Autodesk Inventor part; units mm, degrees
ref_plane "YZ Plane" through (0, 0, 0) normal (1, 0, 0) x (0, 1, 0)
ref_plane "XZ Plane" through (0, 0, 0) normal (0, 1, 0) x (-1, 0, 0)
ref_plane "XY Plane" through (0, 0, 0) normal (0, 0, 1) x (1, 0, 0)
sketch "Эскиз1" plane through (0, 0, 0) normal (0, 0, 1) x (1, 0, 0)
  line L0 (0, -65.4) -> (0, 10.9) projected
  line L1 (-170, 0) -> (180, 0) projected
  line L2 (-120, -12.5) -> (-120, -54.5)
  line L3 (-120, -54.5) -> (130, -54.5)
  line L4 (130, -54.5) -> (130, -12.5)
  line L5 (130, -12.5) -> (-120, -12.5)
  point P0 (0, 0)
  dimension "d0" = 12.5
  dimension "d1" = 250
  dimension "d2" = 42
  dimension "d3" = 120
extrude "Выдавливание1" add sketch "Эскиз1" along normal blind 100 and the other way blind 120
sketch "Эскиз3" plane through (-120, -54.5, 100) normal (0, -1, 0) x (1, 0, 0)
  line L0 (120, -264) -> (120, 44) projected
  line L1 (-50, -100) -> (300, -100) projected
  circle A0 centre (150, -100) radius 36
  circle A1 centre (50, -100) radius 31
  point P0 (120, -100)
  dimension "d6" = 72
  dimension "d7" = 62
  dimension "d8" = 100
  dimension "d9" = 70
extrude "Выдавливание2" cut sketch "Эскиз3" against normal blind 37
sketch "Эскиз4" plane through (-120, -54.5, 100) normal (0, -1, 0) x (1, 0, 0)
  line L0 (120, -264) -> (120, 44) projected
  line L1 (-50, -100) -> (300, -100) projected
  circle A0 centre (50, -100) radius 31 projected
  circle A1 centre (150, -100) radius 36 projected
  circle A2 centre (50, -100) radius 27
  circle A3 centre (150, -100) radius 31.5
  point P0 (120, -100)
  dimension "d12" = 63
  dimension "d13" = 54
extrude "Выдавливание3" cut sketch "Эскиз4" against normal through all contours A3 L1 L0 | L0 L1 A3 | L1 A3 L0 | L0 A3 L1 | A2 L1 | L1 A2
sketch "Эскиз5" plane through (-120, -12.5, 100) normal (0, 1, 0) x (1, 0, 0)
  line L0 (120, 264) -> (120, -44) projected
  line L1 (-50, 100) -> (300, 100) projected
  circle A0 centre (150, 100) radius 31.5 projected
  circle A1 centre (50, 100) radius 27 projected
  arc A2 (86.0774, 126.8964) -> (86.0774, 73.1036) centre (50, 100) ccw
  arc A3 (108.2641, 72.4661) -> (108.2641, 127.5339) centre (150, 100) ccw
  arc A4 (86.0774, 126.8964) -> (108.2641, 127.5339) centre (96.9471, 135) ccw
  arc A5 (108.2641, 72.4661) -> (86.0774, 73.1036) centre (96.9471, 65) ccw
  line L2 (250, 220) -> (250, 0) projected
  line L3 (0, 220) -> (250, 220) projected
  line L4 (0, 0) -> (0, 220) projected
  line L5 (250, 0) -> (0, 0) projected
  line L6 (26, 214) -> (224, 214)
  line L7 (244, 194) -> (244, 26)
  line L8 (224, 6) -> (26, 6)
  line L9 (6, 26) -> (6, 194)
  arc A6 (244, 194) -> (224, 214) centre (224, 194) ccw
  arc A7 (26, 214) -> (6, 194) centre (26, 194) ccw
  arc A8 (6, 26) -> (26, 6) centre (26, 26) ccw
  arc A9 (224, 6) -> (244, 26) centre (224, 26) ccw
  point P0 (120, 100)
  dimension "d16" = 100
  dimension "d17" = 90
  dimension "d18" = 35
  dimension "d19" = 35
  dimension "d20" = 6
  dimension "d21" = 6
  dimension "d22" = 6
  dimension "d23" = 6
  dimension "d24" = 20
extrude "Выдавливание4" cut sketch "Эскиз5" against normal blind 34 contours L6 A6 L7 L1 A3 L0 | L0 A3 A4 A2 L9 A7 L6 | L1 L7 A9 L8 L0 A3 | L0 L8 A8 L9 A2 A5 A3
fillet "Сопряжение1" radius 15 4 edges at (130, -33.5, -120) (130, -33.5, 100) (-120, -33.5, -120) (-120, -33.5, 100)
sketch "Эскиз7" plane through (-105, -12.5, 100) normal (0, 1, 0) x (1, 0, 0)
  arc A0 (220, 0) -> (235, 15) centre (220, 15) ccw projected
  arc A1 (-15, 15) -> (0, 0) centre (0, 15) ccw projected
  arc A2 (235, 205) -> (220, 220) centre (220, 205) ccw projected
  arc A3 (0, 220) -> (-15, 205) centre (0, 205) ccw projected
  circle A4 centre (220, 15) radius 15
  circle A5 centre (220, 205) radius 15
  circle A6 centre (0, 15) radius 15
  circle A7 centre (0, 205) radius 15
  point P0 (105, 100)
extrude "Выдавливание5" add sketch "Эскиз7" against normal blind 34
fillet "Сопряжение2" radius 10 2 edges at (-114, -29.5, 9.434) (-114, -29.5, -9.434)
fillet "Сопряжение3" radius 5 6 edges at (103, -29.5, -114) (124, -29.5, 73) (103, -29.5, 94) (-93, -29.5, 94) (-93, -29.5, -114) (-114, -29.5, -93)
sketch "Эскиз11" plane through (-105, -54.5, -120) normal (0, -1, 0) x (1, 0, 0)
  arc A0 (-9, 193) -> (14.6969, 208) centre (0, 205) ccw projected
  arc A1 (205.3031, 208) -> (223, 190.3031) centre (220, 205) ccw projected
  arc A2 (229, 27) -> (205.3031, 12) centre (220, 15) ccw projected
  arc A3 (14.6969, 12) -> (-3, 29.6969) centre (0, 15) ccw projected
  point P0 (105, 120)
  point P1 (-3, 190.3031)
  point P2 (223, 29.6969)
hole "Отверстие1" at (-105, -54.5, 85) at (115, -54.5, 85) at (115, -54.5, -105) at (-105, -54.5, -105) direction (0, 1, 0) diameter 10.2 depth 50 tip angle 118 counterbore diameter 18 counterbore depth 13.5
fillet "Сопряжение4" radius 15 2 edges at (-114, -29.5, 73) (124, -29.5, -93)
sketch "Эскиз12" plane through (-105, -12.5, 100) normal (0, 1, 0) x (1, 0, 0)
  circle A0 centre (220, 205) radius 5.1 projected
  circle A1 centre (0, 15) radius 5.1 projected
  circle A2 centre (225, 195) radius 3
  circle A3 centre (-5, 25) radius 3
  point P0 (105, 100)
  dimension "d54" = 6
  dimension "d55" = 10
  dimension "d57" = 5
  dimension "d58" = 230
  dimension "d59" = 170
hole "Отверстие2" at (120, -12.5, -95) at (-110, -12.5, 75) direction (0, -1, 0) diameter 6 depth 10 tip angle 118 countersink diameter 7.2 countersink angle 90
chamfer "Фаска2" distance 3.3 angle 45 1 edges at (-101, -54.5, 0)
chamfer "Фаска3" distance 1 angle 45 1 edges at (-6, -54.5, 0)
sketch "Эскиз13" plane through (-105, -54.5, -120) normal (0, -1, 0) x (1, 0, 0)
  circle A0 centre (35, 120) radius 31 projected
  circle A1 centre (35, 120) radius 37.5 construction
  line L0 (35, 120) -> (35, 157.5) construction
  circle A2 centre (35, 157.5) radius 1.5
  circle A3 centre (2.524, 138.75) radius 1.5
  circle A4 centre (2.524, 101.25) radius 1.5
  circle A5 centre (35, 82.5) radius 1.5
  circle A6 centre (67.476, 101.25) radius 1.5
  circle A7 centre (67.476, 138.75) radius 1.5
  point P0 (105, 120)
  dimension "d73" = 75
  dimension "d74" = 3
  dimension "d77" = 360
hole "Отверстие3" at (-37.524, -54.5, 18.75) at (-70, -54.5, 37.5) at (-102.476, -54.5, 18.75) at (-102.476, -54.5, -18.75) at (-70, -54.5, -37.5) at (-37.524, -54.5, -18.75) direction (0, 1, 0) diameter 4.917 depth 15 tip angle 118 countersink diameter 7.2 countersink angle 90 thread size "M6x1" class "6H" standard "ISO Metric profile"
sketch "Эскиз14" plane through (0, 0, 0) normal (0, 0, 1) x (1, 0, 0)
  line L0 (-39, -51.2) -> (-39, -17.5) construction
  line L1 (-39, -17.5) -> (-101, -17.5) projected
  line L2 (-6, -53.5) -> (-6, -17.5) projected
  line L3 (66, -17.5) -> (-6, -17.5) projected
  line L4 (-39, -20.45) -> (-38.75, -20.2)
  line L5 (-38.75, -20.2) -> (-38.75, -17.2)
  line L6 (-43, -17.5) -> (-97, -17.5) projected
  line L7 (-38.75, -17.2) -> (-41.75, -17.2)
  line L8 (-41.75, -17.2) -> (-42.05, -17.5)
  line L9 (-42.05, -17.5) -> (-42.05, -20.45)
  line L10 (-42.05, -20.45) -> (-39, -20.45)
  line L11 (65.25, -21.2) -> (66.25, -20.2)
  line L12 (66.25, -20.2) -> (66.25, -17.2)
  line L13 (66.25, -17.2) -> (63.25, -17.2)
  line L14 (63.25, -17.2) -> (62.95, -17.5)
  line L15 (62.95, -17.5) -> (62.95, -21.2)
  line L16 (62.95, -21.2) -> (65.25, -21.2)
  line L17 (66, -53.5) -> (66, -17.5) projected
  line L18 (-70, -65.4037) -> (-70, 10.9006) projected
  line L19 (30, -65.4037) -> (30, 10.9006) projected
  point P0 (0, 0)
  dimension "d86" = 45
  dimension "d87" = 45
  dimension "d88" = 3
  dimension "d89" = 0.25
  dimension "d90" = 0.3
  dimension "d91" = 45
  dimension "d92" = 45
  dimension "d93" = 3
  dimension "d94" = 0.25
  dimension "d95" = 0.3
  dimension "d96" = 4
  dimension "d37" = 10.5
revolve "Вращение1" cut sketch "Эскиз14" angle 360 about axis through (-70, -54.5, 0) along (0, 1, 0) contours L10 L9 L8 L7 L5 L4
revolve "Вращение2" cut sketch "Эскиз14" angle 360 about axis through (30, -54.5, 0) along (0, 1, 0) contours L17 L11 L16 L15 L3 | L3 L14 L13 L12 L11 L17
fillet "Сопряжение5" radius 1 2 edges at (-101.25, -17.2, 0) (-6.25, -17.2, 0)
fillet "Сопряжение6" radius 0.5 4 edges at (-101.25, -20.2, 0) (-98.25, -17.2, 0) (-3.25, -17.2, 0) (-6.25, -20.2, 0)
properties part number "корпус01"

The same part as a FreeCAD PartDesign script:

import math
import FreeCAD as App
import Part
import Sketcher
Q = App.Units.Quantity


def edges_at(feature, points):
    """Names of the edges that pass closest to the given points."""
    edges = feature.Shape.Edges
    near = lambda p: min(range(len(edges)), key=lambda i: edges[i].distToShape(Part.Vertex(*p))[0])
    return sorted({f"Edge{near(p) + 1}" for p in points})

doc = App.newDocument("Part")
body = doc.addObject("PartDesign::Body", "Body")

# Sketch on XY plane
sketch1 = body.newObject("Sketcher::SketchObject", "Sketch")
sketch1.AttachmentSupport = (doc.getObject("XY_Plane"), [""])
sketch1.MapMode = "FlatFace"
sketch1.addGeometry([
    Part.LineSegment(App.Vector(-120, -54, 0), App.Vector(130, -54, 0)),
    Part.LineSegment(App.Vector(130, -54, 0), App.Vector(130, -12, 0)),
    Part.LineSegment(App.Vector(130, -12, 0), App.Vector(-120, -12, 0)),
    Part.LineSegment(App.Vector(-120, -12, 0), App.Vector(-120, -54, 0)),
], False)
sketch1.addConstraint([
    Sketcher.Constraint("Coincident", 0, 2, 1, 1),
    Sketcher.Constraint("Coincident", 1, 2, 2, 1),
    Sketcher.Constraint("Coincident", 2, 2, 3, 1),
    Sketcher.Constraint("Coincident", 3, 2, 0, 1),
    Sketcher.Constraint("Horizontal", 0),
    Sketcher.Constraint("Vertical", 1),
    Sketcher.Constraint("Horizontal", 2),
    Sketcher.Constraint("Vertical", 3),
    Sketcher.Constraint("DistanceX", 0, 1, 0, 2, Q("250 mm")),
    Sketcher.Constraint("DistanceY", 1, 1, 1, 2, Q("42 mm")),
    Sketcher.Constraint("DistanceX", 2, 2, -1, 1, Q("120 mm")),
    Sketcher.Constraint("DistanceY", 1, 2, -1, 1, Q("12.5 mm")),
])
pad1 = body.newObject("PartDesign::Pad", "Pad")
pad1.Profile = sketch1
pad1.Type = "TwoLengths"
pad1.Length = 100
pad1.Length2 = 120

# Sketch on XZ plane
sketch2 = body.newObject("Sketcher::SketchObject", "Sketch001")
sketch2.AttachmentSupport = (doc.getObject("XZ_Plane"), [""])
sketch2.MapMode = "FlatFace"
sketch2.AttachmentOffset = App.Placement(App.Vector(0, 0, 54.5), App.Rotation())
sketch2.addGeometry([
    Part.Circle(App.Vector(30, 0, 0), App.Vector(0, 0, 1), 36),
    Part.Circle(App.Vector(-70, 0, 0), App.Vector(0, 0, 1), 31),
], False)
sketch2.addConstraint([
    Sketcher.Constraint("PointOnObject", 0, 3, -1),
    Sketcher.Constraint("PointOnObject", 1, 3, -1),
    Sketcher.Constraint("Diameter", 0, Q("72 mm")),
    Sketcher.Constraint("Diameter", 1, Q("62 mm")),
    Sketcher.Constraint("DistanceX", 1, 3, -1, 1, Q("70 mm")),
    Sketcher.Constraint("DistanceX", 1, 3, 0, 3, Q("100 mm")),
])
pocket1 = body.newObject("PartDesign::Pocket", "Pocket")
pocket1.Profile = sketch2
pocket1.Length = 37

# Sketch on XZ plane
sketch3 = body.newObject("Sketcher::SketchObject", "Sketch002")
sketch3.AttachmentSupport = (doc.getObject("XZ_Plane"), [""])
sketch3.MapMode = "FlatFace"
sketch3.AttachmentOffset = App.Placement(App.Vector(0, 0, 54.5), App.Rotation())
sketch3.addGeometry([
    Part.Circle(App.Vector(30, 0, 0), App.Vector(0, 0, 1), 32),
    Part.Circle(App.Vector(-70, 0, 0), App.Vector(0, 0, 1), 27),
], False)
sketch3.addConstraint([
    Sketcher.Constraint("PointOnObject", 0, 3, -1),
    Sketcher.Constraint("PointOnObject", 1, 3, -1),
    Sketcher.Constraint("Diameter", 0, Q("63 mm")),
    Sketcher.Constraint("Diameter", 1, Q("54 mm")),
    Sketcher.Constraint("DistanceX", -1, 1, 0, 3, Q("30 mm")),
    Sketcher.Constraint("DistanceX", 1, 3, -1, 1, Q("70 mm")),
])
pocket2 = body.newObject("PartDesign::Pocket", "Pocket001")
pocket2.Profile = sketch3
pocket2.Type = "ThroughAll"

# Sketch on XZ plane
sketch4 = body.newObject("Sketcher::SketchObject", "Sketch003")
sketch4.AttachmentSupport = (doc.getObject("XZ_Plane"), [""])
sketch4.MapMode = "FlatFace"
sketch4.AttachmentOffset = App.Placement(App.Vector(0, 0, 12.5), App.Rotation())
sketch4.addGeometry([
    Part.LineSegment(App.Vector(104, -114, 0), App.Vector(-94, -114, 0)),  # 0
    Part.ArcOfCircle(Part.Circle(App.Vector(-94, -94, 0), App.Vector(0, 0, 1), 20), math.radians(180), math.radians(270)),  # 1
    Part.LineSegment(App.Vector(-114, -94, 0), App.Vector(-114, -9, 0)),  # 2
    Part.ArcOfCircle(Part.Circle(App.Vector(-70, 0, 0), App.Vector(0, 0, 1), 45), math.radians(-168), math.radians(-37)),  # 3
    Part.ArcOfCircle(Part.Circle(App.Vector(-23, -35, 0), App.Vector(0, 0, 1), 14), math.radians(33), math.radians(143)),  # 4
    Part.ArcOfCircle(Part.Circle(App.Vector(30, 0, 0), App.Vector(0, 0, 1), 50), math.radians(-147), math.radians(147)),  # 5
    Part.ArcOfCircle(Part.Circle(App.Vector(-23, 35, 0), App.Vector(0, 0, 1), 14), math.radians(-143), math.radians(-33)),  # 6
    Part.ArcOfCircle(Part.Circle(App.Vector(-70, 0, 0), App.Vector(0, 0, 1), 45), math.radians(37), math.radians(168)),  # 7
    Part.LineSegment(App.Vector(-114, 9, 0), App.Vector(-114, 74, 0)),  # 8
    Part.ArcOfCircle(Part.Circle(App.Vector(-94, 74, 0), App.Vector(0, 0, 1), 20), math.radians(90), math.radians(180)),  # 9
    Part.LineSegment(App.Vector(-94, 94, 0), App.Vector(104, 94, 0)),  # 10
    Part.ArcOfCircle(Part.Circle(App.Vector(104, 74, 0), App.Vector(0, 0, 1), 20), math.radians(0), math.radians(90)),  # 11
    Part.LineSegment(App.Vector(124, 74, 0), App.Vector(124, -94, 0)),  # 12
    Part.ArcOfCircle(Part.Circle(App.Vector(104, -94, 0), App.Vector(0, 0, 1), 20), math.radians(-90), math.radians(0)),  # 13
], False)
sketch4.addConstraint([
    Sketcher.Constraint("Tangent", 0, 2, 1, 2),
    Sketcher.Constraint("Tangent", 1, 1, 2, 1),
    Sketcher.Constraint("Coincident", 2, 2, 3, 1),
    Sketcher.Constraint("Tangent", 3, 2, 4, 2),
    Sketcher.Constraint("Tangent", 4, 1, 5, 1),
    Sketcher.Constraint("Tangent", 5, 2, 6, 2),
    Sketcher.Constraint("Tangent", 6, 1, 7, 1),
    Sketcher.Constraint("Coincident", 7, 2, 8, 1),
    Sketcher.Constraint("Tangent", 8, 2, 9, 2),
    Sketcher.Constraint("Tangent", 9, 1, 10, 1),
    Sketcher.Constraint("Tangent", 10, 2, 11, 2),
    Sketcher.Constraint("Tangent", 11, 1, 12, 1),
    Sketcher.Constraint("Tangent", 12, 2, 13, 2),
    Sketcher.Constraint("Tangent", 13, 1, 0, 1),
    Sketcher.Constraint("Horizontal", 0),
    Sketcher.Constraint("Vertical", 2),
    Sketcher.Constraint("Vertical", 8),
    Sketcher.Constraint("Horizontal", 10),
    Sketcher.Constraint("Vertical", 12),
    Sketcher.Constraint("Coincident", 7, 3, 3, 3),
    Sketcher.Constraint("Equal", 4, 6),
    Sketcher.Constraint("Equal", 3, 7),
    Sketcher.Constraint("Equal", 1, 9),
    Sketcher.Constraint("Equal", 9, 11),
    Sketcher.Constraint("Equal", 11, 13),
    Sketcher.Constraint("Symmetric", 4, 3, 6, 3, -1),
    Sketcher.Constraint("Vertical", 1, 3, 9, 3),
    Sketcher.Constraint("Radius", 1, Q("20 mm")),
    Sketcher.Constraint("Radius", 3, Q("45 mm")),
    Sketcher.Constraint("Radius", 5, Q("50 mm")),
    Sketcher.Constraint("DistanceY", 4, 3, -1, 1, Q("35 mm")),
    Sketcher.Constraint("DistanceX", 3, 3, 5, 3, Q("100 mm")),
    Sketcher.Constraint("DistanceX", 0, 2, 0, 1, Q("198 mm")),
    Sketcher.Constraint("DistanceY", 12, 2, 12, 1, Q("168 mm")),
    Sketcher.Constraint("DistanceX", 1, 3, -1, 1, Q("94 mm")),
    Sketcher.Constraint("DistanceY", 1, 3, -1, 1, Q("94 mm")),
    Sketcher.Constraint("DistanceX", 3, 3, -1, 1, Q("70 mm")),
])
pocket3 = body.newObject("PartDesign::Pocket", "Pocket002")
pocket3.Profile = sketch4
pocket3.Length = 34
pocket3.Reversed = True
doc.recompute()

fillet = body.newObject("PartDesign::Fillet", "Fillet")
fillet.Base = (pocket3, edges_at(pocket3, [
    (130, -33.5, -120),
    (130, -33.5, 100),
    (-120, -33.5, -120),
    (-120, -33.5, 100),
]))
fillet.Radius = 15

# Sketch on XZ plane
sketch5 = body.newObject("Sketcher::SketchObject", "Sketch004")
sketch5.AttachmentSupport = (doc.getObject("XZ_Plane"), [""])
sketch5.MapMode = "FlatFace"
sketch5.AttachmentOffset = App.Placement(App.Vector(0, 0, 12.5), App.Rotation())
sketch5.addGeometry([
    Part.Circle(App.Vector(115, 85, 0), App.Vector(0, 0, 1), 15),
    Part.Circle(App.Vector(-105, 85, 0), App.Vector(0, 0, 1), 15),
    Part.Circle(App.Vector(115, -105, 0), App.Vector(0, 0, 1), 15),
    Part.Circle(App.Vector(-105, -105, 0), App.Vector(0, 0, 1), 15),
], False)
sketch5.addConstraint([
    Sketcher.Constraint("Equal", 0, 1),
    Sketcher.Constraint("Equal", 1, 2),
    Sketcher.Constraint("Equal", 2, 3),
    Sketcher.Constraint("Horizontal", 0, 3, 1, 3),
    Sketcher.Constraint("Horizontal", 2, 3, 3, 3),
    Sketcher.Constraint("Vertical", 0, 3, 2, 3),
    Sketcher.Constraint("Vertical", 1, 3, 3, 3),
    Sketcher.Constraint("Diameter", 0, Q("30 mm")),
    Sketcher.Constraint("DistanceX", -1, 1, 0, 3, Q("115 mm")),
    Sketcher.Constraint("DistanceY", -1, 1, 0, 3, Q("85 mm")),
    Sketcher.Constraint("DistanceX", 1, 3, -1, 1, Q("105 mm")),
    Sketcher.Constraint("DistanceY", 2, 3, -1, 1, Q("105 mm")),
])
pad2 = body.newObject("PartDesign::Pad", "Pad001")
pad2.Profile = sketch5
pad2.Length = 34
doc.recompute()

fillet2 = body.newObject("PartDesign::Fillet", "Fillet001")
fillet2.Base = (pad2, edges_at(pad2, [(-114, -29.5, 9.434), (-114, -29.5, -9.434)]))
fillet2.Radius = 10
doc.recompute()

fillet3 = body.newObject("PartDesign::Fillet", "Fillet002")
fillet3.Base = (fillet2, edges_at(fillet2, [
    (103, -29.5, -114),
    (124, -29.5, 73),
    (103, -29.5, 94),
    (-93, -29.5, 94),
    (-93, -29.5, -114),
    (-114, -29.5, -93),
]))
fillet3.Radius = 5

# Sketch on XZ plane
sketch6 = body.newObject("Sketcher::SketchObject", "Sketch005")
sketch6.AttachmentSupport = (doc.getObject("XZ_Plane"), [""])
sketch6.MapMode = "FlatFace"
sketch6.AttachmentOffset = App.Placement(App.Vector(0, 0, 54.5), App.Rotation())
sketch6.addGeometry([
    Part.Circle(App.Vector(-105, 85, 0), App.Vector(0, 0, 1), 5),
    Part.Circle(App.Vector(115, 85, 0), App.Vector(0, 0, 1), 5),
    Part.Circle(App.Vector(115, -105, 0), App.Vector(0, 0, 1), 5),
    Part.Circle(App.Vector(-105, -105, 0), App.Vector(0, 0, 1), 5),
], False)
sketch6.addConstraint([
    Sketcher.Constraint("Equal", 0, 1),
    Sketcher.Constraint("Equal", 1, 2),
    Sketcher.Constraint("Equal", 2, 3),
    Sketcher.Constraint("Horizontal", 0, 3, 1, 3),
    Sketcher.Constraint("Horizontal", 2, 3, 3, 3),
    Sketcher.Constraint("Vertical", 1, 3, 2, 3),
    Sketcher.Constraint("Vertical", 0, 3, 3, 3),
    Sketcher.Constraint("Diameter", 0, Q("10.2 mm")),
    Sketcher.Constraint("DistanceX", 0, 3, -1, 1, Q("105 mm")),
    Sketcher.Constraint("DistanceY", -1, 1, 0, 3, Q("85 mm")),
    Sketcher.Constraint("DistanceX", -1, 1, 1, 3, Q("115 mm")),
    Sketcher.Constraint("DistanceY", 2, 3, -1, 1, Q("105 mm")),
])
doc.recompute()
hole = body.newObject("PartDesign::Hole", "Hole")
hole.Profile = sketch6
hole.ThreadType = "None"
hole.Diameter = 10.2
hole.DepthType = "Dimension"
hole.Depth = 50
hole.DrillPoint = "Angled"
hole.DrillPointAngle = 118
hole.HoleCutType = "Counterbore"
hole.HoleCutDiameter = 18
hole.HoleCutDepth = 13.5
doc.recompute()

fillet4 = body.newObject("PartDesign::Fillet", "Fillet003")
fillet4.Base = (hole, edges_at(hole, [(-114, -29.5, 73), (124, -29.5, -93)]))
fillet4.Radius = 15

# Sketch on XZ plane
sketch7 = body.newObject("Sketcher::SketchObject", "Sketch006")
sketch7.AttachmentSupport = (doc.getObject("XZ_Plane"), [""])
sketch7.MapMode = "FlatFace"
sketch7.AttachmentOffset = App.Placement(App.Vector(0, 0, 12.5), App.Rotation())
sketch7.addGeometry([
    Part.Circle(App.Vector(120, -95, 0), App.Vector(0, 0, 1), 3),
    Part.Circle(App.Vector(-110, 75, 0), App.Vector(0, 0, 1), 3),
], False)
sketch7.addConstraint([
    Sketcher.Constraint("Equal", 0, 1),
    Sketcher.Constraint("Diameter", 0, Q("6 mm")),
    Sketcher.Constraint("DistanceX", -1, 1, 0, 3, Q("120 mm")),
    Sketcher.Constraint("DistanceY", 0, 3, -1, 1, Q("95 mm")),
    Sketcher.Constraint("DistanceX", 1, 3, -1, 1, Q("110 mm")),
    Sketcher.Constraint("DistanceY", -1, 1, 1, 3, Q("75 mm")),
])
doc.recompute()
hole2 = body.newObject("PartDesign::Hole", "Hole001")
hole2.Profile = sketch7
hole2.ThreadType = "None"
hole2.Diameter = 6
hole2.DepthType = "Dimension"
hole2.Depth = 10
hole2.DrillPoint = "Angled"
hole2.DrillPointAngle = 118
hole2.HoleCutType = "Countersink"
hole2.HoleCutDiameter = 7.2
hole2.HoleCutCountersinkAngle = 90
hole2.Reversed = True
doc.recompute()

chamfer = body.newObject("PartDesign::Chamfer", "Chamfer")
chamfer.Base = (hole2, edges_at(hole2, [(-101, -54.5, 0)]))
chamfer.Size = 3.3
doc.recompute()

chamfer2 = body.newObject("PartDesign::Chamfer", "Chamfer001")
chamfer2.Base = (chamfer, edges_at(chamfer, [(-6, -54.5, 0)]))
chamfer2.Size = 1

# Sketch on XZ plane
sketch8 = body.newObject("Sketcher::SketchObject", "Sketch007")
sketch8.AttachmentSupport = (doc.getObject("XZ_Plane"), [""])
sketch8.MapMode = "FlatFace"
sketch8.AttachmentOffset = App.Placement(App.Vector(0, 0, 54.5), App.Rotation())
sketch8.addGeometry([
    Part.Circle(App.Vector(-37.5, 18.8, 0), App.Vector(0, 0, 1), 2.5),  # 0
    Part.Circle(App.Vector(-70, 37.5, 0), App.Vector(0, 0, 1), 2.5),  # 1
    Part.Circle(App.Vector(-102.5, 18.8, 0), App.Vector(0, 0, 1), 2.5),  # 2
    Part.Circle(App.Vector(-102.5, -18.8, 0), App.Vector(0, 0, 1), 2.5),  # 3
    Part.Circle(App.Vector(-70, -37.5, 0), App.Vector(0, 0, 1), 2.5),  # 4
    Part.Circle(App.Vector(-37.5, -18.8, 0), App.Vector(0, 0, 1), 2.5),  # 5
], False)
sketch8.addConstraint([
    Sketcher.Constraint("Equal", 0, 1),
    Sketcher.Constraint("Equal", 1, 2),
    Sketcher.Constraint("Equal", 2, 3),
    Sketcher.Constraint("Equal", 3, 4),
    Sketcher.Constraint("Equal", 4, 5),
    Sketcher.Constraint("Symmetric", 2, 3, 3, 3, -1),
    Sketcher.Constraint("Symmetric", 1, 3, 4, 3, -1),
    Sketcher.Constraint("Symmetric", 0, 3, 5, 3, -1),
    Sketcher.Constraint("Horizontal", 0, 3, 2, 3),
    Sketcher.Constraint("Diameter", 0, Q("4.917 mm")),
    Sketcher.Constraint("DistanceX", 1, 3, -1, 1, Q("70 mm")),
    Sketcher.Constraint("DistanceY", 4, 3, 1, 3, Q("75 mm")),
    Sketcher.Constraint("DistanceY", 3, 3, 2, 3, Q("37.5 mm")),
    Sketcher.Constraint("DistanceX", 0, 3, -1, 1, Q("37.524 mm")),
    Sketcher.Constraint("DistanceX", 2, 3, -1, 1, Q("102.476 mm")),
])
doc.recompute()
hole3 = body.newObject("PartDesign::Hole", "Hole002")
hole3.Profile = sketch8
hole3.ThreadType = "None"
hole3.Diameter = 4.917
hole3.DepthType = "Dimension"
hole3.Depth = 15
hole3.DrillPoint = "Angled"
hole3.DrillPointAngle = 118
hole3.HoleCutType = "Countersink"
hole3.HoleCutDiameter = 7.2
hole3.HoleCutCountersinkAngle = 90

# Sketch on XY plane
sketch9 = body.newObject("Sketcher::SketchObject", "Sketch008")
sketch9.AttachmentSupport = (doc.getObject("XY_Plane"), [""])
sketch9.MapMode = "FlatFace"
sketch9.addGeometry([
    Part.LineSegment(App.Vector(-42.05, -20.45, 0), App.Vector(-39, -20.45, 0)),  # 0
    Part.LineSegment(App.Vector(-39, -20.45, 0), App.Vector(-38.75, -20.2, 0)),  # 1
    Part.LineSegment(App.Vector(-38.75, -20.2, 0), App.Vector(-38.75, -17.2, 0)),  # 2
    Part.LineSegment(App.Vector(-38.75, -17.2, 0), App.Vector(-41.75, -17.2, 0)),  # 3
    Part.LineSegment(App.Vector(-41.75, -17.2, 0), App.Vector(-42.05, -17.5, 0)),  # 4
    Part.LineSegment(App.Vector(-42.05, -17.5, 0), App.Vector(-42.05, -20.45, 0)),  # 5
], False)
sketch9.addGeometry(Part.LineSegment(App.Vector(-70, -20.45, 0), App.Vector(-70, -17.2, 0)), True)  # axis
sketch9.addConstraint([
    Sketcher.Constraint("Coincident", 0, 2, 1, 1),
    Sketcher.Constraint("Coincident", 1, 2, 2, 1),
    Sketcher.Constraint("Coincident", 2, 2, 3, 1),
    Sketcher.Constraint("Coincident", 3, 2, 4, 1),
    Sketcher.Constraint("Coincident", 4, 2, 5, 1),
    Sketcher.Constraint("Coincident", 5, 2, 0, 1),
    Sketcher.Constraint("Horizontal", 0),
    Sketcher.Constraint("Vertical", 2),
    Sketcher.Constraint("Horizontal", 3),
    Sketcher.Constraint("Vertical", 5),
    Sketcher.Constraint("Vertical", 6),
    Sketcher.Constraint("Parallel", 1, 4),
    Sketcher.Constraint("Horizontal", 5, 2, 6, 1),
    Sketcher.Constraint("Horizontal", 3, 2, 6, 2),
    Sketcher.Constraint("Equal", 3, 2),
    Sketcher.Constraint("DistanceX", 3, 2, 3, 1, Q("3 mm")),
    Sketcher.Constraint("Angle", 1, Q("45 deg")),
    Sketcher.Constraint("DistanceX", 4, 2, 3, 2, Q("0.3 mm")),
    Sketcher.Constraint("DistanceX", 0, 2, 1, 2, Q("0.25 mm")),
    Sketcher.Constraint("DistanceX", 0, 2, -1, 1, Q("39 mm")),
    Sketcher.Constraint("DistanceX", 6, 1, -1, 1, Q("70 mm")),
    Sketcher.Constraint("DistanceY", 1, 2, -1, 1, Q("20.2 mm")),
])
groove = body.newObject("PartDesign::Groove", "Groove")
groove.Profile = sketch9
groove.ReferenceAxis = (sketch9, ["Axis0"])
groove.Angle = 360

# Sketch on XY plane
sketch10 = body.newObject("Sketcher::SketchObject", "Sketch009")
sketch10.AttachmentSupport = (doc.getObject("XY_Plane"), [""])
sketch10.MapMode = "FlatFace"
sketch10.addGeometry([
    Part.LineSegment(App.Vector(65.25, -21.2, 0), App.Vector(66.25, -20.2, 0)),  # 0
    Part.LineSegment(App.Vector(66.25, -20.2, 0), App.Vector(66.25, -17.2, 0)),  # 1
    Part.LineSegment(App.Vector(66.25, -17.2, 0), App.Vector(63.25, -17.2, 0)),  # 2
    Part.LineSegment(App.Vector(63.25, -17.2, 0), App.Vector(62.95, -17.5, 0)),  # 3
    Part.LineSegment(App.Vector(62.95, -17.5, 0), App.Vector(62.95, -21.2, 0)),  # 4
    Part.LineSegment(App.Vector(62.95, -21.2, 0), App.Vector(65.25, -21.2, 0)),  # 5
], False)
sketch10.addGeometry(Part.LineSegment(App.Vector(30, -21.2, 0), App.Vector(30, -17.2, 0)), True)  # axis
sketch10.addConstraint([
    Sketcher.Constraint("Coincident", 0, 2, 1, 1),
    Sketcher.Constraint("Coincident", 1, 2, 2, 1),
    Sketcher.Constraint("Coincident", 2, 2, 3, 1),
    Sketcher.Constraint("Coincident", 3, 2, 4, 1),
    Sketcher.Constraint("Coincident", 4, 2, 5, 1),
    Sketcher.Constraint("Coincident", 5, 2, 0, 1),
    Sketcher.Constraint("Vertical", 1),
    Sketcher.Constraint("Horizontal", 2),
    Sketcher.Constraint("Vertical", 4),
    Sketcher.Constraint("Horizontal", 5),
    Sketcher.Constraint("Vertical", 6),
    Sketcher.Constraint("Parallel", 0, 3),
    Sketcher.Constraint("Horizontal", 5, 2, 6, 1),
    Sketcher.Constraint("Horizontal", 2, 2, 6, 2),
    Sketcher.Constraint("Equal", 2, 1),
    Sketcher.Constraint("DistanceX", 2, 2, 2, 1, Q("3 mm")),
    Sketcher.Constraint("DistanceY", 6, 1, 6, 2, Q("4 mm")),
    Sketcher.Constraint("Angle", 0, Q("45 deg")),
    Sketcher.Constraint("DistanceX", 3, 2, 2, 2, Q("0.3 mm")),
    Sketcher.Constraint("DistanceX", -1, 1, 6, 1, Q("30 mm")),
    Sketcher.Constraint("DistanceY", 0, 2, -1, 1, Q("20.2 mm")),
    Sketcher.Constraint("DistanceX", -1, 1, 0, 2, Q("66.25 mm")),
])
groove2 = body.newObject("PartDesign::Groove", "Groove001")
groove2.Profile = sketch10
groove2.ReferenceAxis = (sketch10, ["Axis0"])
groove2.Angle = 360
doc.recompute()

fillet5 = body.newObject("PartDesign::Fillet", "Fillet004")
fillet5.Base = (groove2, edges_at(groove2, [(-101.25, -17.2, 0), (-6.25, -17.2, 0)]))
fillet5.Radius = 1
doc.recompute()

fillet6 = body.newObject("PartDesign::Fillet", "Fillet005")
fillet6.Base = (fillet5, edges_at(fillet5, [
    (-101.25, -20.2, 0),
    (-98.25, -17.2, 0),
    (-3.25, -17.2, 0),
    (-6.25, -20.2, 0),
]))
fillet6.Radius = 0.5

doc.recompute()
